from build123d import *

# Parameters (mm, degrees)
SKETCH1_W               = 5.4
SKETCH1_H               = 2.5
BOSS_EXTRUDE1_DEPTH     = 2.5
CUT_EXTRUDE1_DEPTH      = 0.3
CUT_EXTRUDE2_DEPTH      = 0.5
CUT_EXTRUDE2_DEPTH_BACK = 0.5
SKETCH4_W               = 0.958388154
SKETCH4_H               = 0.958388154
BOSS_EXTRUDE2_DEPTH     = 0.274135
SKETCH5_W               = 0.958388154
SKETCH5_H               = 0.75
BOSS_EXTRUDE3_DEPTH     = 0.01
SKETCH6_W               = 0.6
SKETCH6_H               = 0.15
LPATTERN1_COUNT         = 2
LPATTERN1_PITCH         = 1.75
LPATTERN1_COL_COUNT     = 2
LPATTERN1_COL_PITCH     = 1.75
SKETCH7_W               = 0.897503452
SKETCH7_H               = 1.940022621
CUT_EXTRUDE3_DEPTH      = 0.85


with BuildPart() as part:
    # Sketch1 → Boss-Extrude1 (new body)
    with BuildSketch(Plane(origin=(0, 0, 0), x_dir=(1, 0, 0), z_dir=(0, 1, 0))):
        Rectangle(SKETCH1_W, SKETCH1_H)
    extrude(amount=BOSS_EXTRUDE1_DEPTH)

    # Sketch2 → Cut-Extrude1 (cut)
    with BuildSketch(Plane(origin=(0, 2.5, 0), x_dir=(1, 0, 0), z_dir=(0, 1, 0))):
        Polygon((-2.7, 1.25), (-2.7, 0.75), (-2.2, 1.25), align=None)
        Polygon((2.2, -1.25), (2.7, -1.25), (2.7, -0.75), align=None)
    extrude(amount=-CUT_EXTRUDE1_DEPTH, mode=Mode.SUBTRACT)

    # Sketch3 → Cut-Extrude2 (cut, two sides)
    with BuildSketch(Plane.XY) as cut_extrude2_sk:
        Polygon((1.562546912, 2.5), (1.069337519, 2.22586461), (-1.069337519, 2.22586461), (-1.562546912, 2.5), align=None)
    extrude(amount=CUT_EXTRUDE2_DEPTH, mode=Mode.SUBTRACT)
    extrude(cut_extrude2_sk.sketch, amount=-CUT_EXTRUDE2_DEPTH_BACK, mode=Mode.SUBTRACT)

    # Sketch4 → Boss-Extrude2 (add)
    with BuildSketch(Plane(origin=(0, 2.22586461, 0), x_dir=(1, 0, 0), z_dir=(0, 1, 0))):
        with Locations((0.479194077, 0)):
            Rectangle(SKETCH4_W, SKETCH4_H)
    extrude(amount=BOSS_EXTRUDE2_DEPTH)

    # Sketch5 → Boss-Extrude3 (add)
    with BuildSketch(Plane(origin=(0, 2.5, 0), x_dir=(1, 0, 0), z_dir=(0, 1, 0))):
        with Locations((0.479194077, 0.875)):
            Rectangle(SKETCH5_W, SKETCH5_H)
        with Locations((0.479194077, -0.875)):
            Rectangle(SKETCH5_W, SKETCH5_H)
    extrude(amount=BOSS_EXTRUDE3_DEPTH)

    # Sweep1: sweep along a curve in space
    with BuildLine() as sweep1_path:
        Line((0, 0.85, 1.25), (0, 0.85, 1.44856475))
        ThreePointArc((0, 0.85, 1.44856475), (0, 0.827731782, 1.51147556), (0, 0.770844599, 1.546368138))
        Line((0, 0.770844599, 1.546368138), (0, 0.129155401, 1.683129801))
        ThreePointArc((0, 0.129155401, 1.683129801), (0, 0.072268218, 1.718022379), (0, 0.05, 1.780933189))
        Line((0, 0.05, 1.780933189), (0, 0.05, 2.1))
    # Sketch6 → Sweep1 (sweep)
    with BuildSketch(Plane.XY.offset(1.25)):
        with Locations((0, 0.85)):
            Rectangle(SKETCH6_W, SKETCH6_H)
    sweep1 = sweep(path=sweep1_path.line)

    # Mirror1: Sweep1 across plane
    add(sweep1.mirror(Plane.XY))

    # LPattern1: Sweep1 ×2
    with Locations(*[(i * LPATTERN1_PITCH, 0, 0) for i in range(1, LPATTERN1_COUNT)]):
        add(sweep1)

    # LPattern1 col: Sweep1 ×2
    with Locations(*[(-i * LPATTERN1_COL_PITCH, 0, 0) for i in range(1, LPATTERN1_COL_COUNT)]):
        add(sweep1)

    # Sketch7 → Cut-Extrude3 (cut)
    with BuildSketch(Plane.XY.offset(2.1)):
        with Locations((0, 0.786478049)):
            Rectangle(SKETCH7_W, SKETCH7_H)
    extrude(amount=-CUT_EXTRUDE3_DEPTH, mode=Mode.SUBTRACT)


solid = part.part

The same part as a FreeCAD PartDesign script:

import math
import FreeCAD as App
import Part
import Sketcher

V = App.Vector
Q = App.Units.Quantity


def add_polygon(sketch, points):
    """Adds a closed chain of lines whose ends are joined by coincident constraints."""
    first, n = sketch.GeometryCount, len(points)
    for a, b in zip(points, points[1:] + points[:1]):
        sketch.addGeometry(Part.LineSegment(App.Vector(*a, 0), App.Vector(*b, 0)), False)
    for i in range(n):
        sketch.addConstraint(Sketcher.Constraint("Coincident", first + i, 2, first + (i + 1) % n, 1))

doc = App.newDocument("Part")
body = doc.addObject("PartDesign::Body", "Body")

# Sketch on XZ plane
sketch1 = body.newObject("Sketcher::SketchObject", "Sketch")
sketch1.AttachmentSupport = (doc.getObject("XZ_Plane"), [""])
sketch1.MapMode = "FlatFace"
add_polygon(sketch1, [(-2.7, -1.2), (-2.7, 1.2), (2.7, 1.2), (2.7, -1.2)])  # lines 0-3
sketch1.addConstraint(Sketcher.Constraint("Vertical", 0))
sketch1.addConstraint(Sketcher.Constraint("Horizontal", 1))
sketch1.addConstraint(Sketcher.Constraint("Vertical", 2))
sketch1.addConstraint(Sketcher.Constraint("Horizontal", 3))
sketch1.addConstraint(Sketcher.Constraint("Symmetric", 0, 2, 2, 2, -1, 1))
sketch1.addConstraint(Sketcher.Constraint("DistanceX", 1, 1, 1, 2, Q("5.4 mm")))
sketch1.addConstraint(Sketcher.Constraint("DistanceY", 0, 1, 0, 2, Q("2.5 mm")))
pad1 = body.newObject("PartDesign::Pad", "Pad")
pad1.Profile = sketch1
pad1.Length = 2.5
pad1.Reversed = True

# Sketch on XZ plane
sketch2 = body.newObject("Sketcher::SketchObject", "Sketch001")
sketch2.AttachmentSupport = (doc.getObject("XZ_Plane"), [""])
sketch2.MapMode = "FlatFace"
sketch2.AttachmentOffset = App.Placement(V(0, 0, -2.5), App.Rotation())
add_polygon(sketch2, [(-2.7, -1.2), (-2.7, -0.8), (-2.2, -1.2)])  # lines 0-2
add_polygon(sketch2, [(2.2, 1.2), (2.7, 1.2), (2.7, 0.8)])  # lines 3-5
sketch2.addConstraint(Sketcher.Constraint("Vertical", 0))
sketch2.addConstraint(Sketcher.Constraint("Horizontal", 2))
sketch2.addConstraint(Sketcher.Constraint("Horizontal", 3))
sketch2.addConstraint(Sketcher.Constraint("Vertical", 4))
sketch2.addConstraint(Sketcher.Constraint("Symmetric", 2, 2, 3, 2, -1, 1))
sketch2.addConstraint(Sketcher.Constraint("Parallel", 1, 5))
sketch2.addConstraint(Sketcher.Constraint("Equal", 2, 3))
sketch2.addConstraint(Sketcher.Constraint("Equal", 3, 0))
sketch2.addConstraint(Sketcher.Constraint("DistanceX", 2, 2, 2, 1, Q("0.5 mm")))
sketch2.addConstraint(Sketcher.Constraint("DistanceY", 0, 2, 3, 2, Q("2 mm")))
sketch2.addConstraint(Sketcher.Constraint("DistanceX", 0, 2, -1, 1, Q("2.7 mm")))
pocket1 = body.newObject("PartDesign::Pocket", "Pocket")
pocket1.Profile = sketch2
pocket1.Length = 0.3
pocket1.Reversed = True

# Sketch on XY plane
sketch3 = body.newObject("Sketcher::SketchObject", "Sketch002")
sketch3.AttachmentSupport = (doc.getObject("XY_Plane"), [""])
sketch3.MapMode = "FlatFace"
add_polygon(sketch3, [(1.1, 2.2), (1.6, 2.5), (-1.6, 2.5), (-1.1, 2.2)])  # lines 0-3
sketch3.addConstraint(Sketcher.Constraint("Horizontal", 1))
sketch3.addConstraint(Sketcher.Constraint("Horizontal", 3))
sketch3.addConstraint(Sketcher.Constraint("Equal", 0, 2))
sketch3.addConstraint(Sketcher.Constraint("DistanceY", -1, 1, 0, 2, Q("2.5 mm")))
sketch3.addConstraint(Sketcher.Constraint("DistanceX", 1, 2, 1, 1, Q("3.125094 mm")))
sketch3.addConstraint(Sketcher.Constraint("DistanceX", 3, 1, 3, 2, Q("2.138675 mm")))
sketch3.addConstraint(Sketcher.Constraint("Distance", 0, Q("0.564275 mm")))
sketch3.addConstraint(Sketcher.Constraint("DistanceX", -1, 1, 0, 2, Q("1.562547 mm")))
pocket2 = body.newObject("PartDesign::Pocket", "Pocket001")
pocket2.Profile = sketch3
pocket2.Type = "TwoLengths"
pocket2.Length = 0.5
pocket2.Length2 = 0.5
pocket2.Reversed = True

# Sketch on XZ plane
sketch4 = body.newObject("Sketcher::SketchObject", "Sketch003")
sketch4.AttachmentSupport = (doc.getObject("XZ_Plane"), [""])
sketch4.MapMode = "FlatFace"
sketch4.AttachmentOffset = App.Placement(V(0, 0, -2.225865), App.Rotation())
add_polygon(sketch4, [(0, -0.5), (0, 0.5), (1, 0.5), (1, -0.5)])  # lines 0-3
sketch4.addConstraint(Sketcher.Constraint("Vertical", 0))
sketch4.addConstraint(Sketcher.Constraint("Horizontal", 1))
sketch4.addConstraint(Sketcher.Constraint("Vertical", 2))
sketch4.addConstraint(Sketcher.Constraint("Horizontal", 3))
sketch4.addConstraint(Sketcher.Constraint("Symmetric", 0, 2, 3, 2, -1, 1))
sketch4.addConstraint(Sketcher.Constraint("Equal", 3, 0))
sketch4.addConstraint(Sketcher.Constraint("DistanceX", 1, 1, 1, 2, Q("0.958388 mm")))
pad2 = body.newObject("PartDesign::Pad", "Pad001")
pad2.Profile = sketch4
pad2.Length = 0.274135
pad2.Reversed = True

# Sketch on XZ plane
sketch5 = body.newObject("Sketcher::SketchObject", "Sketch004")
sketch5.AttachmentSupport = (doc.getObject("XZ_Plane"), [""])
sketch5.MapMode = "FlatFace"
sketch5.AttachmentOffset = App.Placement(V(0, 0, -2.5), App.Rotation())
add_polygon(sketch5, [(0, -1.2), (0, -0.5), (1, -0.5), (1, -1.2)])  # lines 0-3
add_polygon(sketch5, [(0, 0.5), (0, 1.2), (1, 1.2), (1, 0.5)])  # lines 4-7
sketch5.addConstraint(Sketcher.Constraint("Vertical", 0))
sketch5.addConstraint(Sketcher.Constraint("Horizontal", 1))
sketch5.addConstraint(Sketcher.Constraint("Vertical", 2))
sketch5.addConstraint(Sketcher.Constraint("Horizontal", 3))
sketch5.addConstraint(Sketcher.Constraint("Vertical", 4))
sketch5.addConstraint(Sketcher.Constraint("Horizontal", 5))
sketch5.addConstraint(Sketcher.Constraint("Vertical", 6))
sketch5.addConstraint(Sketcher.Constraint("Horizontal", 7))
sketch5.addConstraint(Sketcher.Constraint("Symmetric", 3, 2, 4, 2, -1, 1))
sketch5.addConstraint(Sketcher.Constraint("Symmetric", 1, 2, 6, 2, -1))
sketch5.addConstraint(Sketcher.Constraint("PointOnObject", 0, 2, -2))
sketch5.addConstraint(Sketcher.Constraint("DistanceY", 1, 2, 6, 2, Q("1 mm")))
sketch5.addConstraint(Sketcher.Constraint("DistanceY", 0, 1, 0, 2, Q("0.75 mm")))
sketch5.addConstraint(Sketcher.Constraint("DistanceX", 1, 1, 1, 2, Q("0.958388 mm")))
pad3 = body.newObject("PartDesign::Pad", "Pad002")
pad3.Profile = sketch5
pad3.Length = 0.01
pad3.Reversed = True

# Sketch on XY plane
sketch6 = body.newObject("Sketcher::SketchObject", "Sketch005")
sketch6.AttachmentSupport = (doc.getObject("XY_Plane"), [""])
sketch6.MapMode = "FlatFace"
sketch6.AttachmentOffset = App.Placement(V(0, 0, 1.25), App.Rotation())
add_polygon(sketch6, [(-0.3, 0.93), (-0.3, 0.78), (0.3, 0.78), (0.3, 0.93)])  # lines 0-3
sketch6.addConstraint(Sketcher.Constraint("Vertical", 0))
sketch6.addConstraint(Sketcher.Constraint("Horizontal", 1))
sketch6.addConstraint(Sketcher.Constraint("Vertical", 2))
sketch6.addConstraint(Sketcher.Constraint("Horizontal", 3))
sketch6.addConstraint(Sketcher.Constraint("DistanceX", 1, 1, 1, 2, Q("0.6 mm")))
sketch6.addConstraint(Sketcher.Constraint("DistanceY", 0, 2, 0, 1, Q("0.15 mm")))
sketch6.addConstraint(Sketcher.Constraint("DistanceX", 0, 2, -1, 1, Q("0.3 mm")))
sketch6.addConstraint(Sketcher.Constraint("DistanceY", -1, 1, 0, 2, Q("0.775 mm")))

# Sketch on YZ plane
sketch7 = body.newObject("Sketcher::SketchObject", "Sketch006")
sketch7.AttachmentSupport = (doc.getObject("YZ_Plane"), [""])
sketch7.MapMode = "FlatFace"
sketch7.addGeometry(Part.LineSegment(V(0.85, 1.25, 0), V(0.85, 1.45, 0)), False)
sketch7.addGeometry(Part.ArcOfCircle(Part.Circle(V(0.75, 1.45, 0), V(0, 0, 1), 0.1), math.radians(0), math.radians(78)), False)
sketch7.addGeometry(Part.LineSegment(V(0.77, 1.55, 0), V(0.13, 1.68, 0)), False)
sketch7.addGeometry(Part.ArcOfCircle(Part.Circle(V(0.15, 1.78, 0), V(0, 0, 1), 0.1), math.radians(-180), math.radians(-102)), False)
sketch7.addGeometry(Part.LineSegment(V(0.05, 1.78, 0), V(0.05, 2.1, 0)), False)
sketch7.addConstraint(Sketcher.Constraint("Tangent", 0, 2, 1, 1))
sketch7.addConstraint(Sketcher.Constraint("Tangent", 1, 2, 2, 1))
sketch7.addConstraint(Sketcher.Constraint("Tangent", 2, 2, 3, 2))
sketch7.addConstraint(Sketcher.Constraint("Tangent", 3, 1, 4, 1))
sketch7.addConstraint(Sketcher.Constraint("Vertical", 0))
sketch7.addConstraint(Sketcher.Constraint("Vertical", 4))
sketch7.addConstraint(Sketcher.Constraint("Equal", 1, 3))
sketch7.addConstraint(Sketcher.Constraint("Radius", 1, Q("0.1 mm")))
sketch7.addConstraint(Sketcher.Constraint("DistanceY", -1, 1, 4, 2, Q("2.1 mm")))
sketch7.addConstraint(Sketcher.Constraint("DistanceX", 3, 3, 1, 3, Q("0.6 mm")))
sketch7.addConstraint(Sketcher.Constraint("DistanceX", -1, 1, 1, 3, Q("0.75 mm")))
sketch7.addConstraint(Sketcher.Constraint("DistanceY", -1, 1, 0, 1, Q("1.25 mm")))
sketch7.addConstraint(Sketcher.Constraint("Distance", 2, Q("0.656101 mm")))
sketch7.addConstraint(Sketcher.Constraint("DistanceY", 0, 1, 0, 2, Q("0.198565 mm")))
doc.recompute()

additivepipe = body.newObject("PartDesign::AdditivePipe", "AdditivePipe")
additivepipe.Profile = sketch6
additivepipe.Spine = (sketch7, ["Edge1", "Edge2", "Edge3", "Edge4", "Edge5"])
doc.recompute()

mirrored = body.newObject("PartDesign::Mirrored", "Mirrored")
mirrored.Originals = [additivepipe]
mirrored.MirrorPlane = (doc.getObject("XY_Plane"), [""])
body.Tip = mirrored
doc.recompute()

linearpattern = body.newObject("PartDesign::LinearPattern", "LinearPattern")
linearpattern.Originals = [additivepipe]
linearpattern.Direction = (doc.getObject("X_Axis"), [""])
linearpattern.Mode = "offset"
linearpattern.Offset = 1.75
linearpattern.Occurrences = 2
body.Tip = linearpattern
doc.recompute()

linearpattern2 = body.newObject("PartDesign::LinearPattern", "LinearPattern001")
linearpattern2.Originals = [additivepipe]
linearpattern2.Direction = (doc.getObject("X_Axis"), [""])
linearpattern2.Mode = "offset"
linearpattern2.Offset = 1.75
linearpattern2.Occurrences = 2
linearpattern2.Reversed = True
body.Tip = linearpattern2

# Sketch on XY plane
sketch8 = body.newObject("Sketcher::SketchObject", "Sketch007")
sketch8.AttachmentSupport = (doc.getObject("XY_Plane"), [""])
sketch8.MapMode = "FlatFace"
sketch8.AttachmentOffset = App.Placement(V(0, 0, 2.1), App.Rotation())
add_polygon(sketch8, [(-0.4, 1.8), (-0.4, -0.2), (0.4, -0.2), (0.4, 1.8)])  # lines 0-3
sketch8.addConstraint(Sketcher.Constraint("Vertical", 0))
sketch8.addConstraint(Sketcher.Constraint("Horizontal", 1))
sketch8.addConstraint(Sketcher.Constraint("Vertical", 2))
sketch8.addConstraint(Sketcher.Constraint("Horizontal", 3))
sketch8.addConstraint(Sketcher.Constraint("DistanceX", 1, 1, 1, 2, Q("0.897503 mm")))
sketch8.addConstraint(Sketcher.Constraint("DistanceY", 0, 2, 0, 1, Q("1.940023 mm")))
sketch8.addConstraint(Sketcher.Constraint("DistanceX", 0, 2, -1, 1, Q("0.448752 mm")))
sketch8.addConstraint(Sketcher.Constraint("DistanceY", -1, 1, 2, 2, Q("1.756489 mm")))
pocket3 = body.newObject("PartDesign::Pocket", "Pocket002")
pocket3.Profile = sketch8
pocket3.Length = 0.85

doc.recompute()
